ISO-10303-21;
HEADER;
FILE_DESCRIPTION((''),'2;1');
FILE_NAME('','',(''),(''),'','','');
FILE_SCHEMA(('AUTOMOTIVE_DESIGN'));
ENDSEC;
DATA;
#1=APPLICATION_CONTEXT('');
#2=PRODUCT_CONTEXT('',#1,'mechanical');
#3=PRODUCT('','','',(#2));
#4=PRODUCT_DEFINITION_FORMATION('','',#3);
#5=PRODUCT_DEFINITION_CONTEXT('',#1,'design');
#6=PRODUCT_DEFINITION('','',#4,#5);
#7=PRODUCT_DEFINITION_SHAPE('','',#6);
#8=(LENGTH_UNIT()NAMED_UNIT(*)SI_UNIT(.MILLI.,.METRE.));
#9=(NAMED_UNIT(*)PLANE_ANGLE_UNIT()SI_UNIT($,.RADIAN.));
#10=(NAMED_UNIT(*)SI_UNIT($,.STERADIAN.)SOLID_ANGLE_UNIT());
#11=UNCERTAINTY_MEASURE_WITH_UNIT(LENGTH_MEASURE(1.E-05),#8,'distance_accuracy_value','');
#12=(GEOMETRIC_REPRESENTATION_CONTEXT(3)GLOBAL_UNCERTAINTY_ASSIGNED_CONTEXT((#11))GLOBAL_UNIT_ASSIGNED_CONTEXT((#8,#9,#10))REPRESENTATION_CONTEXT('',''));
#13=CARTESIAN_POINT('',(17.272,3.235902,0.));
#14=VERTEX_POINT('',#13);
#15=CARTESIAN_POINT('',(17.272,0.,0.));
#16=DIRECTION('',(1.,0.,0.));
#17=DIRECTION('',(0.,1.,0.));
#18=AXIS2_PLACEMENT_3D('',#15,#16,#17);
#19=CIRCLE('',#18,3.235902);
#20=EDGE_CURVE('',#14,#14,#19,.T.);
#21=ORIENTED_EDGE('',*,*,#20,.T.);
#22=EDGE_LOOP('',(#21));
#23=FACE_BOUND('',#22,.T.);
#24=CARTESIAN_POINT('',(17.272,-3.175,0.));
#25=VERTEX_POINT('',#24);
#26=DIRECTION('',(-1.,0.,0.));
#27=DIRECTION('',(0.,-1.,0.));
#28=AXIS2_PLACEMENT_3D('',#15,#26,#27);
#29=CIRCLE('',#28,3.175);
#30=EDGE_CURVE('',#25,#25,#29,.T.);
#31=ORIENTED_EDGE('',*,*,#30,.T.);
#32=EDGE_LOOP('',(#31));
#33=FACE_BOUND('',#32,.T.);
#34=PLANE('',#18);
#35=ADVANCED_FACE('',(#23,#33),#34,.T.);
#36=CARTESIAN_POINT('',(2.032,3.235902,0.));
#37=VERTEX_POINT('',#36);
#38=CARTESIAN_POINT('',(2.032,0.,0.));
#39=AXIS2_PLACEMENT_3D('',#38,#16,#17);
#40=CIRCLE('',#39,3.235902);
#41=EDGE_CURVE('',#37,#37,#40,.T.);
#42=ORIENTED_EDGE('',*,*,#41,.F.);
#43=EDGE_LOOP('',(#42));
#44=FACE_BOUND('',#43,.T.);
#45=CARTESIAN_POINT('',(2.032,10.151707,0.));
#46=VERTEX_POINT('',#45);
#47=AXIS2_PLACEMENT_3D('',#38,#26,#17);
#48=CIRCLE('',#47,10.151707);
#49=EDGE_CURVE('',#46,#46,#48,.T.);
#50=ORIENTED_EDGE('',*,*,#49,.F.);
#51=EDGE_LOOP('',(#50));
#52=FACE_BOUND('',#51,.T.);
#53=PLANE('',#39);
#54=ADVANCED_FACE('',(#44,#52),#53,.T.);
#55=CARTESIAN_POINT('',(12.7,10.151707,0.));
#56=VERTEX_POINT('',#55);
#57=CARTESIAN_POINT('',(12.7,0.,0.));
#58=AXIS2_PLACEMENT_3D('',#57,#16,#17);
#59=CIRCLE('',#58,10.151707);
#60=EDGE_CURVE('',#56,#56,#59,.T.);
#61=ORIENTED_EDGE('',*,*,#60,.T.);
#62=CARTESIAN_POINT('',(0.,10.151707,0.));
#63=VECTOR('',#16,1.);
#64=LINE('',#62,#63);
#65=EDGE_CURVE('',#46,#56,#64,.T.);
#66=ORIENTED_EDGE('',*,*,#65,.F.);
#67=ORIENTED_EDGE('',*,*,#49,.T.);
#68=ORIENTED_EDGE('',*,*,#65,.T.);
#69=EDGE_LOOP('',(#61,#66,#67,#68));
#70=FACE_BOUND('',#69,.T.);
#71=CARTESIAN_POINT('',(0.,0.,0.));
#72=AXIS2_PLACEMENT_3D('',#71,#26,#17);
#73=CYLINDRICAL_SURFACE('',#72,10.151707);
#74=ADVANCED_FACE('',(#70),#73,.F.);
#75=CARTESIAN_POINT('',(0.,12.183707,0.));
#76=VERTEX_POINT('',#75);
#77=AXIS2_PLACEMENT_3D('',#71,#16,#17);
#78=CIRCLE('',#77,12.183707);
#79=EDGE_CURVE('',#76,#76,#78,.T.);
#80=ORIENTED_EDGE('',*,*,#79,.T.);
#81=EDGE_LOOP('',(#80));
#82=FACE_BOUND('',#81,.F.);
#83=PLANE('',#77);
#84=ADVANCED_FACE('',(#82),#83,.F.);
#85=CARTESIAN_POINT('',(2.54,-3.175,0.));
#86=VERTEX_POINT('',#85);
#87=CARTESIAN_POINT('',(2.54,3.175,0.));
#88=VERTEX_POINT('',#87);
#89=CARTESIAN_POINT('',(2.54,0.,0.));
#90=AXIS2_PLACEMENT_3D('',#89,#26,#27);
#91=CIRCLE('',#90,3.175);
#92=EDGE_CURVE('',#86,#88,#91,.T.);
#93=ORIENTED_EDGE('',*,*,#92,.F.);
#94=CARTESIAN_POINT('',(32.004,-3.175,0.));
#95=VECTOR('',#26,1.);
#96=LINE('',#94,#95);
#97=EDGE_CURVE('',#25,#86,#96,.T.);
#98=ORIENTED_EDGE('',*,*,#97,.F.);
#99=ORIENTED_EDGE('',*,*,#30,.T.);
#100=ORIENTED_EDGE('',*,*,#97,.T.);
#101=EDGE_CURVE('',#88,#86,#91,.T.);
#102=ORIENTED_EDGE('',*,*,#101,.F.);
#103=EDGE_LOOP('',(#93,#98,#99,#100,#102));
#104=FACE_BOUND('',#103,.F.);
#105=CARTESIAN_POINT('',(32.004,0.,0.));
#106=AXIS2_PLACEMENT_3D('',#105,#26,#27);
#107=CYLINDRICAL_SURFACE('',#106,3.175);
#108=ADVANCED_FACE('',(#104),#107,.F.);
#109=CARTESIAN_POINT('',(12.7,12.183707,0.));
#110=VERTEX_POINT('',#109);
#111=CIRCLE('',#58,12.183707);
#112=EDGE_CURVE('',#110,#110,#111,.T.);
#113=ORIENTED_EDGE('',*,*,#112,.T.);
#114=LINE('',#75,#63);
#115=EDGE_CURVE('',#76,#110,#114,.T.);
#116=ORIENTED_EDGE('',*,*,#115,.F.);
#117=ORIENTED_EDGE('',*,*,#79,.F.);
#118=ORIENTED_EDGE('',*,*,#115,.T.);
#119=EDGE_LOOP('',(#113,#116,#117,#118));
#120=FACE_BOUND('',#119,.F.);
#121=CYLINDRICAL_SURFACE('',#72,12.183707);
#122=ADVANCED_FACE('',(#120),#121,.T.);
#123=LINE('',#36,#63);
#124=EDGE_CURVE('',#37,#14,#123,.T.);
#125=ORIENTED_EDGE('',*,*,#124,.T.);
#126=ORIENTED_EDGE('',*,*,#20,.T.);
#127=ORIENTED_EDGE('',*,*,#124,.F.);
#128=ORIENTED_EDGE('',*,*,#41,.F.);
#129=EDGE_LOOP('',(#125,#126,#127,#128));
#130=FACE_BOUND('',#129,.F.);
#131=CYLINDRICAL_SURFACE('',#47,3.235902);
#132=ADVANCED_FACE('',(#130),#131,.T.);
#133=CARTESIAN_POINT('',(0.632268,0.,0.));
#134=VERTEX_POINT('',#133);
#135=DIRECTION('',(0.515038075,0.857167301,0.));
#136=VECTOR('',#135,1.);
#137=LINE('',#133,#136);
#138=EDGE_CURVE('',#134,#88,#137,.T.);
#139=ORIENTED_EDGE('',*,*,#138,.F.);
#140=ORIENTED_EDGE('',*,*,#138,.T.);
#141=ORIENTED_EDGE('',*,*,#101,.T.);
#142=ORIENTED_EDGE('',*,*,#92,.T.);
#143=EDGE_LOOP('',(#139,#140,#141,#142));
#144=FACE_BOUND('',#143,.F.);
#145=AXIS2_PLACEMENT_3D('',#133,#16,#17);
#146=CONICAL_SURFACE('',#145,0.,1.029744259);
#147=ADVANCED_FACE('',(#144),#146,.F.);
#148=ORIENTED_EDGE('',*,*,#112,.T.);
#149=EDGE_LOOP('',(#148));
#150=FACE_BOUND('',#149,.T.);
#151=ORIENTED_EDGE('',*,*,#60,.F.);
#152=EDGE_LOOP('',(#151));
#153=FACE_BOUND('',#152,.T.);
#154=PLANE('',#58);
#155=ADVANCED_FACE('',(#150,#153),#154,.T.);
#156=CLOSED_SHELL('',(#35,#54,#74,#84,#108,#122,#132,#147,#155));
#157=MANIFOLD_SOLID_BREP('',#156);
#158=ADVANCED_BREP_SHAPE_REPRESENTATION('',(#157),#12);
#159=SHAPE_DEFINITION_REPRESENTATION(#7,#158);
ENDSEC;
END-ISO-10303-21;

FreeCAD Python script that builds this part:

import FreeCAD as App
import Part
import Sketcher

V = App.Vector
Q = App.Units.Quantity


def faces_at(feature, points):
    """Names of the faces that lie closest to the given points."""
    faces = feature.Shape.Faces
    near = lambda p: min(range(len(faces)), key=lambda i: faces[i].distToShape(Part.Vertex(*p))[0])
    return sorted({f"Face{near(p) + 1}" for p in points})

doc = App.newDocument("Part")
body = doc.addObject("PartDesign::Body", "Body")

# Sketch on YZ plane
sketch1 = body.newObject("Sketcher::SketchObject", "Sketch")
sketch1.AttachmentSupport = (doc.getObject("YZ_Plane"), [""])
sketch1.MapMode = "FlatFace"
sketch1.addGeometry(Part.Circle(V(0, 0, 0), V(0, 0, 1), 12), False)
sketch1.addConstraint([
    Sketcher.Constraint("Coincident", 0, 3, -1, 1),
    Sketcher.Constraint("Diameter", 0, Q("24.367414 mm")),
])
pad1 = body.newObject("PartDesign::Pad", "Pad")
pad1.Profile = sketch1
pad1.Length = Q("0.5 in")
doc.recompute()

thickness = body.newObject("PartDesign::Thickness", "Thickness")
thickness.Base = (pad1, faces_at(pad1, [(12.7, 0, 0)]))
thickness.Value = Q("0.08 in")
thickness.Reversed = True
thickness.Join = "Arc"

# Sketch on YZ plane
sketch2 = body.newObject("Sketcher::SketchObject", "Sketch001")
sketch2.AttachmentSupport = (doc.getObject("YZ_Plane"), [""])
sketch2.MapMode = "FlatFace"
sketch2.AttachmentOffset = App.Placement(V(0, 0, 0.08 * 25.4), App.Rotation())
sketch2.addGeometry(Part.Circle(V(0, 0, 0), V(0, 0, 1), 3.2), False)
sketch2.addConstraint([
    Sketcher.Constraint("Coincident", 0, 3, -1, 1),
    Sketcher.Constraint("Diameter", 0, Q("6.471805 mm")),
])
pad2 = body.newObject("PartDesign::Pad", "Pad001")
pad2.Profile = sketch2
pad2.Length = Q("0.6 in")

# Sketch on YZ plane
sketch3 = body.newObject("Sketcher::SketchObject", "Sketch002")
sketch3.AttachmentSupport = (doc.getObject("YZ_Plane"), [""])
sketch3.MapMode = "FlatFace"
sketch3.AttachmentOffset = App.Placement(V(0, 0, 0.68 * 25.4), App.Rotation())
sketch3.addGeometry(Part.Circle(V(0, 0, 0), V(0, 0, 1), 3.2), False)
sketch3.addConstraint([
    Sketcher.Constraint("Coincident", 0, 3, -1, 1),
    Sketcher.Constraint("Diameter", 0, Q("0.25 in")),
])
doc.recompute()
hole = body.newObject("PartDesign::Hole", "Hole")
hole.Profile = sketch3
hole.ThreadType = "None"
hole.Diameter = Q("0.25 in")
hole.DepthType = "Dimension"
hole.Depth = Q("0.58 in")
hole.DrillPoint = "Angled"
hole.DrillPointAngle = 118

doc.recompute()
